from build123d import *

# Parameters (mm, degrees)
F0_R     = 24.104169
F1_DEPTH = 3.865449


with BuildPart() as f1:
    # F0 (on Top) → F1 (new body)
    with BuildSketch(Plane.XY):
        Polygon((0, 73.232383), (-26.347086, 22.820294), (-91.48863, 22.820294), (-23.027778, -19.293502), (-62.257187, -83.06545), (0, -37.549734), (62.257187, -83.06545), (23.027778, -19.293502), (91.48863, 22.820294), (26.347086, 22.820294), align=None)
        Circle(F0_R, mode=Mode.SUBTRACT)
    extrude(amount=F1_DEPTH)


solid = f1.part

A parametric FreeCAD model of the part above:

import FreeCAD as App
import Part
import Sketcher
from FreeCAD import Vector
Q = App.Units.Quantity


def add_polygon(sketch, points):
    """Adds a closed chain of lines whose ends are joined by coincident constraints."""
    first, n = sketch.GeometryCount, len(points)
    for a, b in zip(points, points[1:] + points[:1]):
        sketch.addGeometry(Part.LineSegment(App.Vector(*a, 0), App.Vector(*b, 0)), False)
    for i in range(n):
        sketch.addConstraint(Sketcher.Constraint("Coincident", first + i, 2, first + (i + 1) % n, 1))

doc = App.newDocument("Part")
params = doc.addObject("Spreadsheet::Sheet", "Params")
for row, (alias, value) in enumerate([
    ("pad1_length", "3.865449 mm"),
], start=1):
    params.set(f"A{row}", alias)
    params.set(f"B{row}", "=" + value)
    params.setAlias(f"B{row}", alias)

body = doc.addObject("PartDesign::Body", "Body")

sketch1 = doc.addObject("Sketcher::SketchObject", "Sketch")
body.addObject(sketch1)
sketch1.AttachmentSupport = (doc.XY_Plane, [""])
sketch1.MapMode = "FlatFace"
add_polygon(sketch1, [(0, 73), (-26, 23), (-91, 23), (-23, -19), (-62, -83), (0, -38), (62, -83), (23, -19), (91, 23), (26, 23)])
sketch1.addGeometry(Part.Circle(Vector(0, 0, 0), Vector(0, 0, 1), 24), False)
sketch1.addConstraint(Sketcher.Constraint("Horizontal", 1))
sketch1.addConstraint(Sketcher.Constraint("Horizontal", 8))
sketch1.addConstraint(Sketcher.Constraint("Coincident", 10, 3, -1, 1))
sketch1.addConstraint(Sketcher.Constraint("Symmetric", 3, 2, 5, 2, -2))
sketch1.addConstraint(Sketcher.Constraint("Symmetric", 2, 2, 6, 2, -2))
sketch1.addConstraint(Sketcher.Constraint("Symmetric", 1, 2, 7, 2, -2))
sketch1.addConstraint(Sketcher.Constraint("PointOnObject", 4, 2, -2))
sketch1.addConstraint(Sketcher.Constraint("PointOnObject", 9, 2, -2))
sketch1.addConstraint(Sketcher.Constraint("Perpendicular", 2, 3))
sketch1.addConstraint(Sketcher.Constraint("Equal", 1, 8))
sketch1.addConstraint(Sketcher.Constraint("Diameter", 10, Q("48.208338 mm")))
sketch1.addConstraint(Sketcher.Constraint("DistanceY", 2, 2, -1, 1, Q("19.293502 mm")))
sketch1.addConstraint(Sketcher.Constraint("DistanceX", 3, 2, 0, 2, Q("35.910101 mm")))
sketch1.addConstraint(Sketcher.Constraint("Distance", 4, Q("77.120929 mm")))
sketch1.addConstraint(Sketcher.Constraint("DistanceX", 1, 2, 1, 1, Q("65.141544 mm")))
sketch1.addConstraint(Sketcher.Constraint("DistanceX", 1, 2, -1, 1, Q("91.48863 mm")))
sketch1.addConstraint(Sketcher.Constraint("DistanceX", 2, 2, -1, 1, Q("23.027778 mm")))
sketch1.addConstraint(Sketcher.Constraint("DistanceY", 3, 2, -1, 1, Q("83.06545 mm")))
sketch1.addConstraint(Sketcher.Constraint("DistanceY", 0, 2, 9, 2, Q("50.412089 mm")))
pad1 = doc.addObject("PartDesign::Pad", "Pad")
body.addObject(pad1)
pad1.Profile = sketch1
pad1.setExpression("Length", "Params.pad1_length")

doc.recompute()
